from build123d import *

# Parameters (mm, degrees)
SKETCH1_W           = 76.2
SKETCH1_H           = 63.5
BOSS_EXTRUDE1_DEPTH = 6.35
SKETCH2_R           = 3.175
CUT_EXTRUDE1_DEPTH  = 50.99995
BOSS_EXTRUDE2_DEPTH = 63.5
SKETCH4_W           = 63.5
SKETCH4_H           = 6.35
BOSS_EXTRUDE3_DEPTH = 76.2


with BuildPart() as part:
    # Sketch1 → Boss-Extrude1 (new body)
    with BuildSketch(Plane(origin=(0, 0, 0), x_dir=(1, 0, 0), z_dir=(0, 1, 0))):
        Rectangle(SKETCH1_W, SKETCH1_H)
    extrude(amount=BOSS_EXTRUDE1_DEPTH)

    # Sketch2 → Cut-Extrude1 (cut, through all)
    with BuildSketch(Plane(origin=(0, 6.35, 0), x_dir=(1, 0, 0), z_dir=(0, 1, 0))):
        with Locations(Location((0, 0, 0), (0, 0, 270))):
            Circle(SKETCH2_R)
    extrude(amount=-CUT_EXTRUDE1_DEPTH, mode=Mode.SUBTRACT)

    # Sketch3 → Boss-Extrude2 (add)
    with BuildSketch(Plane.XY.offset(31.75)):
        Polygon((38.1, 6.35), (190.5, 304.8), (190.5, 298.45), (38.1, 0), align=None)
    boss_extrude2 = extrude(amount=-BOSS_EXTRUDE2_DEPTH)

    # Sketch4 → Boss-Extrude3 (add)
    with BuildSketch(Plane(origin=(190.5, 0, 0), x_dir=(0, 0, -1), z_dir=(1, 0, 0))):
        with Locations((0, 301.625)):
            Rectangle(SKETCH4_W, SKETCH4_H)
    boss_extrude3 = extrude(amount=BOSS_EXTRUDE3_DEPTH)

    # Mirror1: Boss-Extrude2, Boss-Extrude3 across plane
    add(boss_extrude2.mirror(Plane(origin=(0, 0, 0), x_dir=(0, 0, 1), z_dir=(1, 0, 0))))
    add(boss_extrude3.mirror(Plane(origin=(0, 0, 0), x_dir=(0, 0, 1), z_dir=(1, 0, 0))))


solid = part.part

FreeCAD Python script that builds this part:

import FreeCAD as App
import Part
import Sketcher

V = App.Vector
Q = App.Units.Quantity

doc = App.newDocument("Part")
params = doc.addObject("Spreadsheet::Sheet", "Params")
for row, (alias, value) in enumerate([
    ("sketch1_width", "3 in"),
    ("sketch1_height", "2.5 in"),
    ("pad1_length", "0.25 in"),
    ("sketch2_diameter", "0.25 in"),
    ("sketch3_height", "0.25 in"),
    ("pad2_length", "2.5 in"),
    ("sketch4_height", "2.5 in"),
    ("sketch4_width", "0.25 in"),
    ("pad3_length", "3 in"),
], start=1):
    params.set(f"A{row}", alias)
    params.set(f"B{row}", "=" + value)
    params.setAlias(f"B{row}", alias)

body = doc.addObject("PartDesign::Body", "Body")

sketch1 = doc.addObject("Sketcher::SketchObject", "Sketch")
body.addObject(sketch1)
sketch1.AttachmentSupport = (doc.XZ_Plane, [""])
sketch1.MapMode = "FlatFace"
sketch1.addGeometry([
    Part.LineSegment(V(-38, -32, 0), V(-38, 32, 0)),
    Part.LineSegment(V(-38, 32, 0), V(38, 32, 0)),
    Part.LineSegment(V(38, 32, 0), V(38, -32, 0)),
    Part.LineSegment(V(38, -32, 0), V(-38, -32, 0)),
], False)
sketch1.addConstraint([
    Sketcher.Constraint("Coincident", 0, 2, 1, 1),
    Sketcher.Constraint("Coincident", 1, 2, 2, 1),
    Sketcher.Constraint("Coincident", 2, 2, 3, 1),
    Sketcher.Constraint("Coincident", 3, 2, 0, 1),
    Sketcher.Constraint("Vertical", 0),
    Sketcher.Constraint("Horizontal", 1),
    Sketcher.Constraint("Vertical", 2),
    Sketcher.Constraint("Horizontal", 3),
    Sketcher.Constraint("Symmetric", 0, 2, 2, 2, -1, 1),
    Sketcher.Constraint("DistanceX", 1, 1, 1, 2, Q("3 in")),
    Sketcher.Constraint("DistanceY", 0, 1, 0, 2, Q("2.5 in")),
])
sketch1.setExpression("Constraints[9]", "Params.sketch1_width")
sketch1.setExpression("Constraints[10]", "Params.sketch1_height")
pad1 = doc.addObject("PartDesign::Pad", "Pad")
body.addObject(pad1)
pad1.Profile = sketch1
pad1.setExpression("Length", "Params.pad1_length")
pad1.Reversed = True

sketch2 = doc.addObject("Sketcher::SketchObject", "Sketch001")
body.addObject(sketch2)
sketch2.AttachmentSupport = (doc.XZ_Plane, [""])
sketch2.MapMode = "FlatFace"
sketch2.AttachmentOffset = App.Placement(V(0, 0, -0.25 * 25.4), App.Rotation())
sketch2.addGeometry(Part.Circle(V(0, 0, 0), V(0, 0, 1), 3.2), False)
sketch2.addConstraint([
    Sketcher.Constraint("Coincident", 0, 3, -1, 1),
    Sketcher.Constraint("Diameter", 0, Q("0.25 in")),
])
sketch2.setExpression("Constraints[1]", "Params.sketch2_diameter")
pocket1 = doc.addObject("PartDesign::Pocket", "Pocket")
body.addObject(pocket1)
pocket1.Profile = sketch2
pocket1.Type = "ThroughAll"
pocket1.Reversed = True

sketch3 = doc.addObject("Sketcher::SketchObject", "Sketch002")
body.addObject(sketch3)
sketch3.AttachmentSupport = (doc.XY_Plane, [""])
sketch3.MapMode = "FlatFace"
sketch3.AttachmentOffset = App.Placement(V(0, 0, 1.25 * 25.4), App.Rotation())
sketch3.addGeometry([
    Part.LineSegment(V(190, 305, 0), V(38, 6, 0)),
    Part.LineSegment(V(38, 6, 0), V(38, 0, 0)),
    Part.LineSegment(V(38, 0, 0), V(190, 298, 0)),
    Part.LineSegment(V(190, 298, 0), V(190, 305, 0)),
], False)
sketch3.addConstraint([
    Sketcher.Constraint("Coincident", 0, 2, 1, 1),
    Sketcher.Constraint("Coincident", 1, 2, 2, 1),
    Sketcher.Constraint("Coincident", 2, 2, 3, 1),
    Sketcher.Constraint("Coincident", 3, 2, 0, 1),
    Sketcher.Constraint("Vertical", 1),
    Sketcher.Constraint("Vertical", 3),
    Sketcher.Constraint("PointOnObject", 1, 2, -1),
    Sketcher.Constraint("Parallel", 0, 2),
    Sketcher.Constraint("DistanceY", -1, 1, 3, 2, Q("12 in")),
    Sketcher.Constraint("DistanceX", 0, 2, 2, 2, Q("6 in")),
    Sketcher.Constraint("DistanceY", 1, 2, 1, 1, Q("0.25 in")),
    Sketcher.Constraint("DistanceX", -1, 1, 0, 2, Q("1.5 in")),
])
sketch3.setExpression("Constraints[10]", "Params.sketch3_height")
pad2 = doc.addObject("PartDesign::Pad", "Pad001")
body.addObject(pad2)
pad2.Profile = sketch3
pad2.setExpression("Length", "Params.pad2_length")
pad2.Reversed = True

sketch4 = doc.addObject("Sketcher::SketchObject", "Sketch003")
body.addObject(sketch4)
sketch4.AttachmentSupport = (doc.YZ_Plane, [""])
sketch4.MapMode = "FlatFace"
sketch4.AttachmentOffset = App.Placement(V(0, 0, 7.5 * 25.4), App.Rotation())
sketch4.addGeometry([
    Part.LineSegment(V(305, 32, 0), V(298, 32, 0)),
    Part.LineSegment(V(298, 32, 0), V(298, -32, 0)),
    Part.LineSegment(V(298, -32, 0), V(305, -32, 0)),
    Part.LineSegment(V(305, -32, 0), V(305, 32, 0)),
], False)
sketch4.addConstraint([
    Sketcher.Constraint("Coincident", 0, 2, 1, 1),
    Sketcher.Constraint("Coincident", 1, 2, 2, 1),
    Sketcher.Constraint("Coincident", 2, 2, 3, 1),
    Sketcher.Constraint("Coincident", 3, 2, 0, 1),
    Sketcher.Constraint("Horizontal", 0),
    Sketcher.Constraint("Vertical", 1),
    Sketcher.Constraint("Horizontal", 2),
    Sketcher.Constraint("Vertical", 3),
    Sketcher.Constraint("DistanceY", 1, 2, 1, 1, Q("2.5 in")),
    Sketcher.Constraint("DistanceX", -1, 1, 2, 2, Q("12 in")),
    Sketcher.Constraint("DistanceX", 0, 2, 0, 1, Q("0.25 in")),
    Sketcher.Constraint("DistanceY", -1, 1, 0, 2, Q("1.25 in")),
])
sketch4.setExpression("Constraints[8]", "Params.sketch4_height")
sketch4.setExpression("Constraints[10]", "Params.sketch4_width")
pad3 = doc.addObject("PartDesign::Pad", "Pad002")
body.addObject(pad3)
pad3.Profile = sketch4
pad3.setExpression("Length", "Params.pad3_length")
doc.recompute()

mirrored = doc.addObject("PartDesign::Mirrored", "Mirrored")
body.addObject(mirrored)
mirrored.Originals = [pad2, pad3]
mirrored.MirrorPlane = (doc.YZ_Plane, [""])
body.Tip = mirrored

doc.recompute()
